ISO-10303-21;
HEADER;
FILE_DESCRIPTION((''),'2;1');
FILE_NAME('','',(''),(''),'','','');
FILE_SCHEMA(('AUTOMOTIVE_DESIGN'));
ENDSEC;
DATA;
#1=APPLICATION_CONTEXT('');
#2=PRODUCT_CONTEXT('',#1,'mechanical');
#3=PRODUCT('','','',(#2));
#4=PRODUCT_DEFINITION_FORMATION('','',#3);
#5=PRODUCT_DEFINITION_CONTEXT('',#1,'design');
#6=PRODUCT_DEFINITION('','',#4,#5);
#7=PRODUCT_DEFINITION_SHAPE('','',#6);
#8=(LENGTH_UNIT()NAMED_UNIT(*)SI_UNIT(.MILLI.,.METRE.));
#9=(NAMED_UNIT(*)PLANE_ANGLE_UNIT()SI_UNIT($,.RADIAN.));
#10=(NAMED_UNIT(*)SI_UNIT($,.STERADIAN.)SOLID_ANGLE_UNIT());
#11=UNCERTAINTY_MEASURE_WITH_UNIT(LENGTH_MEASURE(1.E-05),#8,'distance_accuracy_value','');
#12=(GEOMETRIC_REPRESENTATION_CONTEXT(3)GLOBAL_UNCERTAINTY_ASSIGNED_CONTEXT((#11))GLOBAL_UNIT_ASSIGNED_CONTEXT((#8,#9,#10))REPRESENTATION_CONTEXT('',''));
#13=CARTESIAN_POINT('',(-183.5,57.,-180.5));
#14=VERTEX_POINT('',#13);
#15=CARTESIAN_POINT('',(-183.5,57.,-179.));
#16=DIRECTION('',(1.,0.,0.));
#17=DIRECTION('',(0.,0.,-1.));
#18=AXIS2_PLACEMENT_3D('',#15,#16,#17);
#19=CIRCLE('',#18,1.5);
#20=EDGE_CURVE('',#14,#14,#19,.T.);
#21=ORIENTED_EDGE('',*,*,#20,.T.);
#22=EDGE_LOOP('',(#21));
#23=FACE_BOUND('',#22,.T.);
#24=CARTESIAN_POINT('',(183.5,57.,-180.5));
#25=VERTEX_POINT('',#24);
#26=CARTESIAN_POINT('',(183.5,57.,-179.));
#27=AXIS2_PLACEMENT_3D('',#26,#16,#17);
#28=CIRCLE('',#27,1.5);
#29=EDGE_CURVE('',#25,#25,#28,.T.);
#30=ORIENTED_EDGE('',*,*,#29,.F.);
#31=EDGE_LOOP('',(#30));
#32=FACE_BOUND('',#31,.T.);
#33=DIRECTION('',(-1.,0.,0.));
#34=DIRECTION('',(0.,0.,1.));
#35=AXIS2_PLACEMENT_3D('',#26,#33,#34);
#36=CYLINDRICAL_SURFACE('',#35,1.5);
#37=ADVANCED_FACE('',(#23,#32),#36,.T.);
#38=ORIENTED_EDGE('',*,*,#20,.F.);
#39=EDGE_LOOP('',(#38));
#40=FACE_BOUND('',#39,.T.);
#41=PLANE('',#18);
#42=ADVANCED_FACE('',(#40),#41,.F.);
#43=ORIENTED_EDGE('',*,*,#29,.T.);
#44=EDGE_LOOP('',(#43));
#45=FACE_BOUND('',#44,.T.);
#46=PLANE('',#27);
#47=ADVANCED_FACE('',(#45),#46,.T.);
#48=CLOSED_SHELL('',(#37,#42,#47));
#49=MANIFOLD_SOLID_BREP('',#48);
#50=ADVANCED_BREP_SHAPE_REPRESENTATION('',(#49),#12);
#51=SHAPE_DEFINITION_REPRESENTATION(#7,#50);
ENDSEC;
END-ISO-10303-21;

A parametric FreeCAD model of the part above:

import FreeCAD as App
import Part
import Sketcher

V = App.Vector
Q = App.Units.Quantity

doc = App.newDocument("Part")
body = doc.addObject("PartDesign::Body", "Body")

# Sketch on YZ plane
sketch1 = body.newObject("Sketcher::SketchObject", "Sketch")
sketch1.AttachmentSupport = (doc.getObject("YZ_Plane"), [""])
sketch1.MapMode = "FlatFace"
sketch1.addGeometry(Part.Circle(V(57, -179, 0), V(0, 0, 1), 1.5), False)
sketch1.addConstraint(Sketcher.Constraint("Diameter", 0, Q("3 mm")))
sketch1.addConstraint(Sketcher.Constraint("DistanceX", -1, 1, 0, 3, Q("57 mm")))
sketch1.addConstraint(Sketcher.Constraint("DistanceY", 0, 3, -1, 1, Q("179 mm")))
pad1 = body.newObject("PartDesign::Pad", "Pad")
pad1.Profile = sketch1
pad1.Length = 367
pad1.Midplane = True

doc.recompute()
